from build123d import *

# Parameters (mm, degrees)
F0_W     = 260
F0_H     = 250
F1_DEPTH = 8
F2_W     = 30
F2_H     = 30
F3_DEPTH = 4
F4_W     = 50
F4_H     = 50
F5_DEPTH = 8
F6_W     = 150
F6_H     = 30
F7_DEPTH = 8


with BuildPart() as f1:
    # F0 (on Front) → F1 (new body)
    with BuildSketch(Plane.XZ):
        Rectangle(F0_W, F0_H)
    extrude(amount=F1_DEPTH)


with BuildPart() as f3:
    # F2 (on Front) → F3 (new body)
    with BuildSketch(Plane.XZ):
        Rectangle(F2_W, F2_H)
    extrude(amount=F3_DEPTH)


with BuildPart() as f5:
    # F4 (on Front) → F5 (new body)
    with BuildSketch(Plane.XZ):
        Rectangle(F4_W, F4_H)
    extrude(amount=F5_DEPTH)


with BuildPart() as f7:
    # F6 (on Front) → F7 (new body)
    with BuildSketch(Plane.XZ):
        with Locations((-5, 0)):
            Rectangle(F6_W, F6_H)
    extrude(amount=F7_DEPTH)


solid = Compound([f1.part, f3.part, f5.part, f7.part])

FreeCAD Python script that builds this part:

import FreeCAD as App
import Part
import Sketcher

V = App.Vector
Q = App.Units.Quantity

doc = App.newDocument("Part")
body = doc.addObject("PartDesign::Body", "Body")

sketch1 = body.newObject("Sketcher::SketchObject", "Sketch")
sketch1.AttachmentSupport = (doc.getObject("XZ_Plane"), [""])
sketch1.MapMode = "FlatFace"
sketch1.addGeometry(Part.LineSegment(V(-130, 125, 0), V(-130, -125, 0)), False)
sketch1.addGeometry(Part.LineSegment(V(-130, -125, 0), V(130, -125, 0)), False)
sketch1.addGeometry(Part.LineSegment(V(130, -125, 0), V(130, 125, 0)), False)
sketch1.addGeometry(Part.LineSegment(V(130, 125, 0), V(-130, 125, 0)), False)
sketch1.addConstraint(Sketcher.Constraint("Coincident", 0, 2, 1, 1))
sketch1.addConstraint(Sketcher.Constraint("Coincident", 1, 2, 2, 1))
sketch1.addConstraint(Sketcher.Constraint("Coincident", 2, 2, 3, 1))
sketch1.addConstraint(Sketcher.Constraint("Coincident", 3, 2, 0, 1))
sketch1.addConstraint(Sketcher.Constraint("Vertical", 0))
sketch1.addConstraint(Sketcher.Constraint("Horizontal", 1))
sketch1.addConstraint(Sketcher.Constraint("Vertical", 2))
sketch1.addConstraint(Sketcher.Constraint("Horizontal", 3))
sketch1.addConstraint(Sketcher.Constraint("Symmetric", 0, 2, 2, 2, -1, 1))
sketch1.addConstraint(Sketcher.Constraint("DistanceX", 1, 1, 1, 2, Q("260 mm")))
sketch1.addConstraint(Sketcher.Constraint("DistanceY", 0, 2, 0, 1, Q("250 mm")))
pad1 = body.newObject("PartDesign::Pad", "Pad")
pad1.Profile = sketch1
pad1.Length = 8
body2 = doc.addObject("PartDesign::Body", "Body001")

sketch2 = body2.newObject("Sketcher::SketchObject", "Sketch001")
sketch2.AttachmentSupport = (doc.getObject("XZ_Plane001"), [""])
sketch2.MapMode = "FlatFace"
sketch2.addGeometry(Part.LineSegment(V(-15, 15, 0), V(-15, -15, 0)), False)
sketch2.addGeometry(Part.LineSegment(V(-15, -15, 0), V(15, -15, 0)), False)
sketch2.addGeometry(Part.LineSegment(V(15, -15, 0), V(15, 15, 0)), False)
sketch2.addGeometry(Part.LineSegment(V(15, 15, 0), V(-15, 15, 0)), False)
sketch2.addConstraint(Sketcher.Constraint("Coincident", 0, 2, 1, 1))
sketch2.addConstraint(Sketcher.Constraint("Coincident", 1, 2, 2, 1))
sketch2.addConstraint(Sketcher.Constraint("Coincident", 2, 2, 3, 1))
sketch2.addConstraint(Sketcher.Constraint("Coincident", 3, 2, 0, 1))
sketch2.addConstraint(Sketcher.Constraint("Vertical", 0))
sketch2.addConstraint(Sketcher.Constraint("Horizontal", 1))
sketch2.addConstraint(Sketcher.Constraint("Vertical", 2))
sketch2.addConstraint(Sketcher.Constraint("Horizontal", 3))
sketch2.addConstraint(Sketcher.Constraint("Symmetric", 0, 2, 2, 2, -1, 1))
sketch2.addConstraint(Sketcher.Constraint("Equal", 3, 0))
sketch2.addConstraint(Sketcher.Constraint("DistanceX", 1, 1, 1, 2, Q("30 mm")))
pad2 = body2.newObject("PartDesign::Pad", "Pad001")
pad2.Profile = sketch2
pad2.Length = 4
body3 = doc.addObject("PartDesign::Body", "Body002")

sketch3 = body3.newObject("Sketcher::SketchObject", "Sketch002")
sketch3.AttachmentSupport = (doc.getObject("XZ_Plane002"), [""])
sketch3.MapMode = "FlatFace"
sketch3.addGeometry(Part.LineSegment(V(-25, 25, 0), V(-25, -25, 0)), False)
sketch3.addGeometry(Part.LineSegment(V(-25, -25, 0), V(25, -25, 0)), False)
sketch3.addGeometry(Part.LineSegment(V(25, -25, 0), V(25, 25, 0)), False)
sketch3.addGeometry(Part.LineSegment(V(25, 25, 0), V(-25, 25, 0)), False)
sketch3.addConstraint(Sketcher.Constraint("Coincident", 0, 2, 1, 1))
sketch3.addConstraint(Sketcher.Constraint("Coincident", 1, 2, 2, 1))
sketch3.addConstraint(Sketcher.Constraint("Coincident", 2, 2, 3, 1))
sketch3.addConstraint(Sketcher.Constraint("Coincident", 3, 2, 0, 1))
sketch3.addConstraint(Sketcher.Constraint("Vertical", 0))
sketch3.addConstraint(Sketcher.Constraint("Horizontal", 1))
sketch3.addConstraint(Sketcher.Constraint("Vertical", 2))
sketch3.addConstraint(Sketcher.Constraint("Horizontal", 3))
sketch3.addConstraint(Sketcher.Constraint("Symmetric", 0, 2, 2, 2, -1, 1))
sketch3.addConstraint(Sketcher.Constraint("Equal", 3, 0))
sketch3.addConstraint(Sketcher.Constraint("DistanceX", 1, 1, 1, 2, Q("50 mm")))
pad3 = body3.newObject("PartDesign::Pad", "Pad002")
pad3.Profile = sketch3
pad3.Length = 8
body4 = doc.addObject("PartDesign::Body", "Body003")

sketch4 = body4.newObject("Sketcher::SketchObject", "Sketch003")
sketch4.AttachmentSupport = (doc.getObject("XZ_Plane003"), [""])
sketch4.MapMode = "FlatFace"
sketch4.addGeometry(Part.LineSegment(V(-80, 15, 0), V(-80, -15, 0)), False)
sketch4.addGeometry(Part.LineSegment(V(-80, -15, 0), V(70, -15, 0)), False)
sketch4.addGeometry(Part.LineSegment(V(70, -15, 0), V(70, 15, 0)), False)
sketch4.addGeometry(Part.LineSegment(V(70, 15, 0), V(-80, 15, 0)), False)
sketch4.addConstraint(Sketcher.Constraint("Coincident", 0, 2, 1, 1))
sketch4.addConstraint(Sketcher.Constraint("Coincident", 1, 2, 2, 1))
sketch4.addConstraint(Sketcher.Constraint("Coincident", 2, 2, 3, 1))
sketch4.addConstraint(Sketcher.Constraint("Coincident", 3, 2, 0, 1))
sketch4.addConstraint(Sketcher.Constraint("Vertical", 0))
sketch4.addConstraint(Sketcher.Constraint("Horizontal", 1))
sketch4.addConstraint(Sketcher.Constraint("Vertical", 2))
sketch4.addConstraint(Sketcher.Constraint("Horizontal", 3))
sketch4.addConstraint(Sketcher.Constraint("DistanceX", 1, 1, 1, 2, Q("150 mm")))
sketch4.addConstraint(Sketcher.Constraint("DistanceY", 0, 2, 0, 1, Q("30 mm")))
sketch4.addConstraint(Sketcher.Constraint("DistanceX", 0, 2, -1, 1, Q("80 mm")))
sketch4.addConstraint(Sketcher.Constraint("DistanceY", 0, 2, -1, 1, Q("15 mm")))
pad4 = body4.newObject("PartDesign::Pad", "Pad003")
pad4.Profile = sketch4
pad4.Length = 8

doc.recompute()
